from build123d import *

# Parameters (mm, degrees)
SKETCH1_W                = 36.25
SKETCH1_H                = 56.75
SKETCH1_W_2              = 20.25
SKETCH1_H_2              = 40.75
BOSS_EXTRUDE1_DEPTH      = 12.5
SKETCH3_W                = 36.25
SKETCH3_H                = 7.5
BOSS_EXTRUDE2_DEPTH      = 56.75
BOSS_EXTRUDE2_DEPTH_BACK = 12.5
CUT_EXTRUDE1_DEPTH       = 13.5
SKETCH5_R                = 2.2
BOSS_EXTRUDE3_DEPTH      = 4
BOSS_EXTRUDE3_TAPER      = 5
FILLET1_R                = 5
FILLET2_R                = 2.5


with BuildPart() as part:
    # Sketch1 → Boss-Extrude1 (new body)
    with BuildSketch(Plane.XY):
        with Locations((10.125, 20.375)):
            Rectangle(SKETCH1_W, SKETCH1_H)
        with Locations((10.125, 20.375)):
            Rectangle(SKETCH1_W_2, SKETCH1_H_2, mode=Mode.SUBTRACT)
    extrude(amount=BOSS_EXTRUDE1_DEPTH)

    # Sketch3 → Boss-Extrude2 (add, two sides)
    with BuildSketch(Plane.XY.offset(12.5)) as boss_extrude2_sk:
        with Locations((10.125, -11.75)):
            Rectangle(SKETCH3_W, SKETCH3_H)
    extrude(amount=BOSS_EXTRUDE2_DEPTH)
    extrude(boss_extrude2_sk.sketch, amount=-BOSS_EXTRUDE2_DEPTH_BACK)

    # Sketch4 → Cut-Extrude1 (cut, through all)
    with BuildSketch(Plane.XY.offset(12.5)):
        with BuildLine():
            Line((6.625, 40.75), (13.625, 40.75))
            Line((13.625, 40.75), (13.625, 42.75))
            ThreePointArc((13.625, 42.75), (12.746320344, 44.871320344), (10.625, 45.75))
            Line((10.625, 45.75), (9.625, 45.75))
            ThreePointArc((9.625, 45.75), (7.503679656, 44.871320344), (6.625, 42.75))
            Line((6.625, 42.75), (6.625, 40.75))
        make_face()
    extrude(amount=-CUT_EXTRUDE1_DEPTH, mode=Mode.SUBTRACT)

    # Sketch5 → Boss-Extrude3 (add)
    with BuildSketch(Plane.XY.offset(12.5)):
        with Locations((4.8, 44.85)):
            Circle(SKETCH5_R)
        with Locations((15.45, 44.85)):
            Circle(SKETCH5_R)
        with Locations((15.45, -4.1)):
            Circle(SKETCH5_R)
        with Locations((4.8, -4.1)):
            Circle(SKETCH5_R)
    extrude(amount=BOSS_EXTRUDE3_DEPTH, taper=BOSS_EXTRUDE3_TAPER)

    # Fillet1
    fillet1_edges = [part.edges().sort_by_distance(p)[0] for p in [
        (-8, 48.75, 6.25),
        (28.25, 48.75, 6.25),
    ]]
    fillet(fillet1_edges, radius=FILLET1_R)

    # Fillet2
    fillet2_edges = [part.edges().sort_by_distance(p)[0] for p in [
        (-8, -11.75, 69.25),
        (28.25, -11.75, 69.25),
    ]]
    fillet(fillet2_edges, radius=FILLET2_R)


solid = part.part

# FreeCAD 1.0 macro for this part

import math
import FreeCAD as App
import Part
import Sketcher
from FreeCAD import Vector
Q = App.Units.Quantity


def edges_at(feature, points):
    """Names of the edges that pass closest to the given points."""
    edges = feature.Shape.Edges
    near = lambda p: min(range(len(edges)), key=lambda i: edges[i].distToShape(Part.Vertex(*p))[0])
    return sorted({f"Edge{near(p) + 1}" for p in points})


def add_polygon(sketch, points):
    """Adds a closed chain of lines whose ends are joined by coincident constraints."""
    first, n = sketch.GeometryCount, len(points)
    for a, b in zip(points, points[1:] + points[:1]):
        sketch.addGeometry(Part.LineSegment(App.Vector(*a, 0), App.Vector(*b, 0)), False)
    for i in range(n):
        sketch.addConstraint(Sketcher.Constraint("Coincident", first + i, 2, first + (i + 1) % n, 1))

doc = App.newDocument("Part")
body = doc.addObject("PartDesign::Body", "Body")

sketch1 = body.newObject("Sketcher::SketchObject", "Sketch")
sketch1.AttachmentSupport = (doc.getObject("XY_Plane"), [""])
sketch1.MapMode = "FlatFace"
add_polygon(sketch1, [(-8, 49), (-8, -8), (28, -8), (28, 49)])
add_polygon(sketch1, [(20, 0), (0, 0), (0, 41), (20, 41)])
sketch1.addConstraint(Sketcher.Constraint("Vertical", 0))
sketch1.addConstraint(Sketcher.Constraint("Horizontal", 1))
sketch1.addConstraint(Sketcher.Constraint("Vertical", 2))
sketch1.addConstraint(Sketcher.Constraint("Horizontal", 3))
sketch1.addConstraint(Sketcher.Constraint("Horizontal", 4))
sketch1.addConstraint(Sketcher.Constraint("Vertical", 5))
sketch1.addConstraint(Sketcher.Constraint("Horizontal", 6))
sketch1.addConstraint(Sketcher.Constraint("Vertical", 7))
sketch1.addConstraint(Sketcher.Constraint("Coincident", 4, 2, -1, 1))
sketch1.addConstraint(Sketcher.Constraint("DistanceX", 0, 2, -1, 1, Q("8 mm")))
sketch1.addConstraint(Sketcher.Constraint("DistanceY", 0, 2, -1, 1, Q("8 mm")))
sketch1.addConstraint(Sketcher.Constraint("DistanceY", 5, 2, 3, 2, Q("8 mm")))
sketch1.addConstraint(Sketcher.Constraint("DistanceX", 6, 2, 2, 2, Q("8 mm")))
sketch1.addConstraint(Sketcher.Constraint("DistanceX", 1, 1, 1, 2, Q("36.25 mm")))
sketch1.addConstraint(Sketcher.Constraint("DistanceY", 0, 2, 0, 1, Q("56.75 mm")))
pad1 = body.newObject("PartDesign::Pad", "Pad")
pad1.Profile = sketch1
pad1.Length = 12.5

sketch2 = body.newObject("Sketcher::SketchObject", "Sketch001")
sketch2.AttachmentSupport = (doc.getObject("XY_Plane"), [""])
sketch2.MapMode = "FlatFace"
sketch2.AttachmentOffset = App.Placement(Vector(0, 0, 12.5), App.Rotation())
add_polygon(sketch2, [(-8, -8), (-8, -16), (28, -16), (28, -8)])
sketch2.addConstraint(Sketcher.Constraint("Vertical", 0))
sketch2.addConstraint(Sketcher.Constraint("Horizontal", 1))
sketch2.addConstraint(Sketcher.Constraint("Vertical", 2))
sketch2.addConstraint(Sketcher.Constraint("Horizontal", 3))
sketch2.addConstraint(Sketcher.Constraint("DistanceY", 0, 2, 0, 1, Q("7.5 mm")))
sketch2.addConstraint(Sketcher.Constraint("DistanceX", 0, 2, -1, 1, Q("8 mm")))
sketch2.addConstraint(Sketcher.Constraint("DistanceY", 2, 2, -1, 1, Q("8 mm")))
sketch2.addConstraint(Sketcher.Constraint("DistanceX", 1, 1, 1, 2, Q("36.25 mm")))
pad2 = body.newObject("PartDesign::Pad", "Pad001")
pad2.Profile = sketch2
pad2.Type = "TwoLengths"
pad2.Length = 56.75
pad2.Length2 = 12.5

sketch3 = body.newObject("Sketcher::SketchObject", "Sketch002")
sketch3.AttachmentSupport = (doc.getObject("XY_Plane"), [""])
sketch3.MapMode = "FlatFace"
sketch3.AttachmentOffset = App.Placement(Vector(0, 0, 12.5), App.Rotation())
sketch3.addGeometry(Part.LineSegment(Vector(6.6, 40.8, 0), Vector(13.6, 40.8, 0)), False)
sketch3.addGeometry(Part.LineSegment(Vector(13.6, 40.8, 0), Vector(13.6, 42.8, 0)), False)
sketch3.addGeometry(Part.ArcOfCircle(Part.Circle(Vector(10.6, 42.8, 0), Vector(0, 0, 1), 3), math.radians(0), math.radians(90)), False)
sketch3.addGeometry(Part.LineSegment(Vector(10.6, 45.8, 0), Vector(9.6, 45.8, 0)), False)
sketch3.addGeometry(Part.ArcOfCircle(Part.Circle(Vector(9.6, 42.8, 0), Vector(0, 0, 1), 3), math.radians(90), math.radians(180)), False)
sketch3.addGeometry(Part.LineSegment(Vector(6.6, 42.8, 0), Vector(6.6, 40.8, 0)), False)
sketch3.addConstraint(Sketcher.Constraint("Coincident", 0, 2, 1, 1))
sketch3.addConstraint(Sketcher.Constraint("Tangent", 1, 2, 2, 1))
sketch3.addConstraint(Sketcher.Constraint("Tangent", 2, 2, 3, 1))
sketch3.addConstraint(Sketcher.Constraint("Tangent", 3, 2, 4, 1))
sketch3.addConstraint(Sketcher.Constraint("Tangent", 4, 2, 5, 1))
sketch3.addConstraint(Sketcher.Constraint("Coincident", 5, 2, 0, 1))
sketch3.addConstraint(Sketcher.Constraint("Horizontal", 0))
sketch3.addConstraint(Sketcher.Constraint("Vertical", 1))
sketch3.addConstraint(Sketcher.Constraint("Horizontal", 3))
sketch3.addConstraint(Sketcher.Constraint("Vertical", 5))
sketch3.addConstraint(Sketcher.Constraint("Equal", 2, 4))
sketch3.addConstraint(Sketcher.Constraint("Radius", 2, Q("3 mm")))
sketch3.addConstraint(Sketcher.Constraint("DistanceX", 0, 1, 0, 2, Q("7 mm")))
sketch3.addConstraint(Sketcher.Constraint("DistanceY", 1, 1, 1, 2, Q("2 mm")))
sketch3.addConstraint(Sketcher.Constraint("DistanceY", -1, 1, 2, 3, Q("42.75 mm")))
sketch3.addConstraint(Sketcher.Constraint("DistanceX", -1, 1, 2, 3, Q("10.625 mm")))
pocket1 = body.newObject("PartDesign::Pocket", "Pocket")
pocket1.Profile = sketch3
pocket1.Type = "ThroughAll"

sketch4 = body.newObject("Sketcher::SketchObject", "Sketch003")
sketch4.AttachmentSupport = (doc.getObject("XY_Plane"), [""])
sketch4.MapMode = "FlatFace"
sketch4.AttachmentOffset = App.Placement(Vector(0, 0, 12.5), App.Rotation())
sketch4.addGeometry(Part.Circle(Vector(4.8, 44.9, 0), Vector(0, 0, 1), 2.2), False)
sketch4.addGeometry(Part.Circle(Vector(15.4, 44.9, 0), Vector(0, 0, 1), 2.2), False)
sketch4.addGeometry(Part.Circle(Vector(15.4, -4.1, 0), Vector(0, 0, 1), 2.2), False)
sketch4.addGeometry(Part.Circle(Vector(4.8, -4.1, 0), Vector(0, 0, 1), 2.2), False)
sketch4.addConstraint(Sketcher.Constraint("Equal", 0, 1))
sketch4.addConstraint(Sketcher.Constraint("Equal", 1, 2))
sketch4.addConstraint(Sketcher.Constraint("Equal", 2, 3))
sketch4.addConstraint(Sketcher.Constraint("Horizontal", 0, 3, 1, 3))
sketch4.addConstraint(Sketcher.Constraint("Horizontal", 2, 3, 3, 3))
sketch4.addConstraint(Sketcher.Constraint("Vertical", 1, 3, 2, 3))
sketch4.addConstraint(Sketcher.Constraint("Vertical", 0, 3, 3, 3))
sketch4.addConstraint(Sketcher.Constraint("Diameter", 0, Q("4.4 mm")))
sketch4.addConstraint(Sketcher.Constraint("DistanceX", -1, 1, 0, 3, Q("4.8 mm")))
sketch4.addConstraint(Sketcher.Constraint("DistanceY", 2, 3, -1, 1, Q("4.1 mm")))
sketch4.addConstraint(Sketcher.Constraint("DistanceY", -1, 1, 0, 3, Q("44.85 mm")))
sketch4.addConstraint(Sketcher.Constraint("DistanceX", -1, 1, 1, 3, Q("15.45 mm")))
pad3 = body.newObject("PartDesign::Pad", "Pad002")
pad3.Profile = sketch4
pad3.Length = 4
pad3.TaperAngle = -5
doc.recompute()

fillet = body.newObject("PartDesign::Fillet", "Fillet")
fillet.Base = (pad3, edges_at(pad3, [(-8, 48.75, 6.25), (28.25, 48.75, 6.25)]))
fillet.Radius = 5
doc.recompute()

fillet2 = body.newObject("PartDesign::Fillet", "Fillet001")
fillet2.Base = (fillet, edges_at(fillet, [(-8, -11.75, 69.25), (28.25, -11.75, 69.25)]))
fillet2.Radius = 2.5

doc.recompute()
